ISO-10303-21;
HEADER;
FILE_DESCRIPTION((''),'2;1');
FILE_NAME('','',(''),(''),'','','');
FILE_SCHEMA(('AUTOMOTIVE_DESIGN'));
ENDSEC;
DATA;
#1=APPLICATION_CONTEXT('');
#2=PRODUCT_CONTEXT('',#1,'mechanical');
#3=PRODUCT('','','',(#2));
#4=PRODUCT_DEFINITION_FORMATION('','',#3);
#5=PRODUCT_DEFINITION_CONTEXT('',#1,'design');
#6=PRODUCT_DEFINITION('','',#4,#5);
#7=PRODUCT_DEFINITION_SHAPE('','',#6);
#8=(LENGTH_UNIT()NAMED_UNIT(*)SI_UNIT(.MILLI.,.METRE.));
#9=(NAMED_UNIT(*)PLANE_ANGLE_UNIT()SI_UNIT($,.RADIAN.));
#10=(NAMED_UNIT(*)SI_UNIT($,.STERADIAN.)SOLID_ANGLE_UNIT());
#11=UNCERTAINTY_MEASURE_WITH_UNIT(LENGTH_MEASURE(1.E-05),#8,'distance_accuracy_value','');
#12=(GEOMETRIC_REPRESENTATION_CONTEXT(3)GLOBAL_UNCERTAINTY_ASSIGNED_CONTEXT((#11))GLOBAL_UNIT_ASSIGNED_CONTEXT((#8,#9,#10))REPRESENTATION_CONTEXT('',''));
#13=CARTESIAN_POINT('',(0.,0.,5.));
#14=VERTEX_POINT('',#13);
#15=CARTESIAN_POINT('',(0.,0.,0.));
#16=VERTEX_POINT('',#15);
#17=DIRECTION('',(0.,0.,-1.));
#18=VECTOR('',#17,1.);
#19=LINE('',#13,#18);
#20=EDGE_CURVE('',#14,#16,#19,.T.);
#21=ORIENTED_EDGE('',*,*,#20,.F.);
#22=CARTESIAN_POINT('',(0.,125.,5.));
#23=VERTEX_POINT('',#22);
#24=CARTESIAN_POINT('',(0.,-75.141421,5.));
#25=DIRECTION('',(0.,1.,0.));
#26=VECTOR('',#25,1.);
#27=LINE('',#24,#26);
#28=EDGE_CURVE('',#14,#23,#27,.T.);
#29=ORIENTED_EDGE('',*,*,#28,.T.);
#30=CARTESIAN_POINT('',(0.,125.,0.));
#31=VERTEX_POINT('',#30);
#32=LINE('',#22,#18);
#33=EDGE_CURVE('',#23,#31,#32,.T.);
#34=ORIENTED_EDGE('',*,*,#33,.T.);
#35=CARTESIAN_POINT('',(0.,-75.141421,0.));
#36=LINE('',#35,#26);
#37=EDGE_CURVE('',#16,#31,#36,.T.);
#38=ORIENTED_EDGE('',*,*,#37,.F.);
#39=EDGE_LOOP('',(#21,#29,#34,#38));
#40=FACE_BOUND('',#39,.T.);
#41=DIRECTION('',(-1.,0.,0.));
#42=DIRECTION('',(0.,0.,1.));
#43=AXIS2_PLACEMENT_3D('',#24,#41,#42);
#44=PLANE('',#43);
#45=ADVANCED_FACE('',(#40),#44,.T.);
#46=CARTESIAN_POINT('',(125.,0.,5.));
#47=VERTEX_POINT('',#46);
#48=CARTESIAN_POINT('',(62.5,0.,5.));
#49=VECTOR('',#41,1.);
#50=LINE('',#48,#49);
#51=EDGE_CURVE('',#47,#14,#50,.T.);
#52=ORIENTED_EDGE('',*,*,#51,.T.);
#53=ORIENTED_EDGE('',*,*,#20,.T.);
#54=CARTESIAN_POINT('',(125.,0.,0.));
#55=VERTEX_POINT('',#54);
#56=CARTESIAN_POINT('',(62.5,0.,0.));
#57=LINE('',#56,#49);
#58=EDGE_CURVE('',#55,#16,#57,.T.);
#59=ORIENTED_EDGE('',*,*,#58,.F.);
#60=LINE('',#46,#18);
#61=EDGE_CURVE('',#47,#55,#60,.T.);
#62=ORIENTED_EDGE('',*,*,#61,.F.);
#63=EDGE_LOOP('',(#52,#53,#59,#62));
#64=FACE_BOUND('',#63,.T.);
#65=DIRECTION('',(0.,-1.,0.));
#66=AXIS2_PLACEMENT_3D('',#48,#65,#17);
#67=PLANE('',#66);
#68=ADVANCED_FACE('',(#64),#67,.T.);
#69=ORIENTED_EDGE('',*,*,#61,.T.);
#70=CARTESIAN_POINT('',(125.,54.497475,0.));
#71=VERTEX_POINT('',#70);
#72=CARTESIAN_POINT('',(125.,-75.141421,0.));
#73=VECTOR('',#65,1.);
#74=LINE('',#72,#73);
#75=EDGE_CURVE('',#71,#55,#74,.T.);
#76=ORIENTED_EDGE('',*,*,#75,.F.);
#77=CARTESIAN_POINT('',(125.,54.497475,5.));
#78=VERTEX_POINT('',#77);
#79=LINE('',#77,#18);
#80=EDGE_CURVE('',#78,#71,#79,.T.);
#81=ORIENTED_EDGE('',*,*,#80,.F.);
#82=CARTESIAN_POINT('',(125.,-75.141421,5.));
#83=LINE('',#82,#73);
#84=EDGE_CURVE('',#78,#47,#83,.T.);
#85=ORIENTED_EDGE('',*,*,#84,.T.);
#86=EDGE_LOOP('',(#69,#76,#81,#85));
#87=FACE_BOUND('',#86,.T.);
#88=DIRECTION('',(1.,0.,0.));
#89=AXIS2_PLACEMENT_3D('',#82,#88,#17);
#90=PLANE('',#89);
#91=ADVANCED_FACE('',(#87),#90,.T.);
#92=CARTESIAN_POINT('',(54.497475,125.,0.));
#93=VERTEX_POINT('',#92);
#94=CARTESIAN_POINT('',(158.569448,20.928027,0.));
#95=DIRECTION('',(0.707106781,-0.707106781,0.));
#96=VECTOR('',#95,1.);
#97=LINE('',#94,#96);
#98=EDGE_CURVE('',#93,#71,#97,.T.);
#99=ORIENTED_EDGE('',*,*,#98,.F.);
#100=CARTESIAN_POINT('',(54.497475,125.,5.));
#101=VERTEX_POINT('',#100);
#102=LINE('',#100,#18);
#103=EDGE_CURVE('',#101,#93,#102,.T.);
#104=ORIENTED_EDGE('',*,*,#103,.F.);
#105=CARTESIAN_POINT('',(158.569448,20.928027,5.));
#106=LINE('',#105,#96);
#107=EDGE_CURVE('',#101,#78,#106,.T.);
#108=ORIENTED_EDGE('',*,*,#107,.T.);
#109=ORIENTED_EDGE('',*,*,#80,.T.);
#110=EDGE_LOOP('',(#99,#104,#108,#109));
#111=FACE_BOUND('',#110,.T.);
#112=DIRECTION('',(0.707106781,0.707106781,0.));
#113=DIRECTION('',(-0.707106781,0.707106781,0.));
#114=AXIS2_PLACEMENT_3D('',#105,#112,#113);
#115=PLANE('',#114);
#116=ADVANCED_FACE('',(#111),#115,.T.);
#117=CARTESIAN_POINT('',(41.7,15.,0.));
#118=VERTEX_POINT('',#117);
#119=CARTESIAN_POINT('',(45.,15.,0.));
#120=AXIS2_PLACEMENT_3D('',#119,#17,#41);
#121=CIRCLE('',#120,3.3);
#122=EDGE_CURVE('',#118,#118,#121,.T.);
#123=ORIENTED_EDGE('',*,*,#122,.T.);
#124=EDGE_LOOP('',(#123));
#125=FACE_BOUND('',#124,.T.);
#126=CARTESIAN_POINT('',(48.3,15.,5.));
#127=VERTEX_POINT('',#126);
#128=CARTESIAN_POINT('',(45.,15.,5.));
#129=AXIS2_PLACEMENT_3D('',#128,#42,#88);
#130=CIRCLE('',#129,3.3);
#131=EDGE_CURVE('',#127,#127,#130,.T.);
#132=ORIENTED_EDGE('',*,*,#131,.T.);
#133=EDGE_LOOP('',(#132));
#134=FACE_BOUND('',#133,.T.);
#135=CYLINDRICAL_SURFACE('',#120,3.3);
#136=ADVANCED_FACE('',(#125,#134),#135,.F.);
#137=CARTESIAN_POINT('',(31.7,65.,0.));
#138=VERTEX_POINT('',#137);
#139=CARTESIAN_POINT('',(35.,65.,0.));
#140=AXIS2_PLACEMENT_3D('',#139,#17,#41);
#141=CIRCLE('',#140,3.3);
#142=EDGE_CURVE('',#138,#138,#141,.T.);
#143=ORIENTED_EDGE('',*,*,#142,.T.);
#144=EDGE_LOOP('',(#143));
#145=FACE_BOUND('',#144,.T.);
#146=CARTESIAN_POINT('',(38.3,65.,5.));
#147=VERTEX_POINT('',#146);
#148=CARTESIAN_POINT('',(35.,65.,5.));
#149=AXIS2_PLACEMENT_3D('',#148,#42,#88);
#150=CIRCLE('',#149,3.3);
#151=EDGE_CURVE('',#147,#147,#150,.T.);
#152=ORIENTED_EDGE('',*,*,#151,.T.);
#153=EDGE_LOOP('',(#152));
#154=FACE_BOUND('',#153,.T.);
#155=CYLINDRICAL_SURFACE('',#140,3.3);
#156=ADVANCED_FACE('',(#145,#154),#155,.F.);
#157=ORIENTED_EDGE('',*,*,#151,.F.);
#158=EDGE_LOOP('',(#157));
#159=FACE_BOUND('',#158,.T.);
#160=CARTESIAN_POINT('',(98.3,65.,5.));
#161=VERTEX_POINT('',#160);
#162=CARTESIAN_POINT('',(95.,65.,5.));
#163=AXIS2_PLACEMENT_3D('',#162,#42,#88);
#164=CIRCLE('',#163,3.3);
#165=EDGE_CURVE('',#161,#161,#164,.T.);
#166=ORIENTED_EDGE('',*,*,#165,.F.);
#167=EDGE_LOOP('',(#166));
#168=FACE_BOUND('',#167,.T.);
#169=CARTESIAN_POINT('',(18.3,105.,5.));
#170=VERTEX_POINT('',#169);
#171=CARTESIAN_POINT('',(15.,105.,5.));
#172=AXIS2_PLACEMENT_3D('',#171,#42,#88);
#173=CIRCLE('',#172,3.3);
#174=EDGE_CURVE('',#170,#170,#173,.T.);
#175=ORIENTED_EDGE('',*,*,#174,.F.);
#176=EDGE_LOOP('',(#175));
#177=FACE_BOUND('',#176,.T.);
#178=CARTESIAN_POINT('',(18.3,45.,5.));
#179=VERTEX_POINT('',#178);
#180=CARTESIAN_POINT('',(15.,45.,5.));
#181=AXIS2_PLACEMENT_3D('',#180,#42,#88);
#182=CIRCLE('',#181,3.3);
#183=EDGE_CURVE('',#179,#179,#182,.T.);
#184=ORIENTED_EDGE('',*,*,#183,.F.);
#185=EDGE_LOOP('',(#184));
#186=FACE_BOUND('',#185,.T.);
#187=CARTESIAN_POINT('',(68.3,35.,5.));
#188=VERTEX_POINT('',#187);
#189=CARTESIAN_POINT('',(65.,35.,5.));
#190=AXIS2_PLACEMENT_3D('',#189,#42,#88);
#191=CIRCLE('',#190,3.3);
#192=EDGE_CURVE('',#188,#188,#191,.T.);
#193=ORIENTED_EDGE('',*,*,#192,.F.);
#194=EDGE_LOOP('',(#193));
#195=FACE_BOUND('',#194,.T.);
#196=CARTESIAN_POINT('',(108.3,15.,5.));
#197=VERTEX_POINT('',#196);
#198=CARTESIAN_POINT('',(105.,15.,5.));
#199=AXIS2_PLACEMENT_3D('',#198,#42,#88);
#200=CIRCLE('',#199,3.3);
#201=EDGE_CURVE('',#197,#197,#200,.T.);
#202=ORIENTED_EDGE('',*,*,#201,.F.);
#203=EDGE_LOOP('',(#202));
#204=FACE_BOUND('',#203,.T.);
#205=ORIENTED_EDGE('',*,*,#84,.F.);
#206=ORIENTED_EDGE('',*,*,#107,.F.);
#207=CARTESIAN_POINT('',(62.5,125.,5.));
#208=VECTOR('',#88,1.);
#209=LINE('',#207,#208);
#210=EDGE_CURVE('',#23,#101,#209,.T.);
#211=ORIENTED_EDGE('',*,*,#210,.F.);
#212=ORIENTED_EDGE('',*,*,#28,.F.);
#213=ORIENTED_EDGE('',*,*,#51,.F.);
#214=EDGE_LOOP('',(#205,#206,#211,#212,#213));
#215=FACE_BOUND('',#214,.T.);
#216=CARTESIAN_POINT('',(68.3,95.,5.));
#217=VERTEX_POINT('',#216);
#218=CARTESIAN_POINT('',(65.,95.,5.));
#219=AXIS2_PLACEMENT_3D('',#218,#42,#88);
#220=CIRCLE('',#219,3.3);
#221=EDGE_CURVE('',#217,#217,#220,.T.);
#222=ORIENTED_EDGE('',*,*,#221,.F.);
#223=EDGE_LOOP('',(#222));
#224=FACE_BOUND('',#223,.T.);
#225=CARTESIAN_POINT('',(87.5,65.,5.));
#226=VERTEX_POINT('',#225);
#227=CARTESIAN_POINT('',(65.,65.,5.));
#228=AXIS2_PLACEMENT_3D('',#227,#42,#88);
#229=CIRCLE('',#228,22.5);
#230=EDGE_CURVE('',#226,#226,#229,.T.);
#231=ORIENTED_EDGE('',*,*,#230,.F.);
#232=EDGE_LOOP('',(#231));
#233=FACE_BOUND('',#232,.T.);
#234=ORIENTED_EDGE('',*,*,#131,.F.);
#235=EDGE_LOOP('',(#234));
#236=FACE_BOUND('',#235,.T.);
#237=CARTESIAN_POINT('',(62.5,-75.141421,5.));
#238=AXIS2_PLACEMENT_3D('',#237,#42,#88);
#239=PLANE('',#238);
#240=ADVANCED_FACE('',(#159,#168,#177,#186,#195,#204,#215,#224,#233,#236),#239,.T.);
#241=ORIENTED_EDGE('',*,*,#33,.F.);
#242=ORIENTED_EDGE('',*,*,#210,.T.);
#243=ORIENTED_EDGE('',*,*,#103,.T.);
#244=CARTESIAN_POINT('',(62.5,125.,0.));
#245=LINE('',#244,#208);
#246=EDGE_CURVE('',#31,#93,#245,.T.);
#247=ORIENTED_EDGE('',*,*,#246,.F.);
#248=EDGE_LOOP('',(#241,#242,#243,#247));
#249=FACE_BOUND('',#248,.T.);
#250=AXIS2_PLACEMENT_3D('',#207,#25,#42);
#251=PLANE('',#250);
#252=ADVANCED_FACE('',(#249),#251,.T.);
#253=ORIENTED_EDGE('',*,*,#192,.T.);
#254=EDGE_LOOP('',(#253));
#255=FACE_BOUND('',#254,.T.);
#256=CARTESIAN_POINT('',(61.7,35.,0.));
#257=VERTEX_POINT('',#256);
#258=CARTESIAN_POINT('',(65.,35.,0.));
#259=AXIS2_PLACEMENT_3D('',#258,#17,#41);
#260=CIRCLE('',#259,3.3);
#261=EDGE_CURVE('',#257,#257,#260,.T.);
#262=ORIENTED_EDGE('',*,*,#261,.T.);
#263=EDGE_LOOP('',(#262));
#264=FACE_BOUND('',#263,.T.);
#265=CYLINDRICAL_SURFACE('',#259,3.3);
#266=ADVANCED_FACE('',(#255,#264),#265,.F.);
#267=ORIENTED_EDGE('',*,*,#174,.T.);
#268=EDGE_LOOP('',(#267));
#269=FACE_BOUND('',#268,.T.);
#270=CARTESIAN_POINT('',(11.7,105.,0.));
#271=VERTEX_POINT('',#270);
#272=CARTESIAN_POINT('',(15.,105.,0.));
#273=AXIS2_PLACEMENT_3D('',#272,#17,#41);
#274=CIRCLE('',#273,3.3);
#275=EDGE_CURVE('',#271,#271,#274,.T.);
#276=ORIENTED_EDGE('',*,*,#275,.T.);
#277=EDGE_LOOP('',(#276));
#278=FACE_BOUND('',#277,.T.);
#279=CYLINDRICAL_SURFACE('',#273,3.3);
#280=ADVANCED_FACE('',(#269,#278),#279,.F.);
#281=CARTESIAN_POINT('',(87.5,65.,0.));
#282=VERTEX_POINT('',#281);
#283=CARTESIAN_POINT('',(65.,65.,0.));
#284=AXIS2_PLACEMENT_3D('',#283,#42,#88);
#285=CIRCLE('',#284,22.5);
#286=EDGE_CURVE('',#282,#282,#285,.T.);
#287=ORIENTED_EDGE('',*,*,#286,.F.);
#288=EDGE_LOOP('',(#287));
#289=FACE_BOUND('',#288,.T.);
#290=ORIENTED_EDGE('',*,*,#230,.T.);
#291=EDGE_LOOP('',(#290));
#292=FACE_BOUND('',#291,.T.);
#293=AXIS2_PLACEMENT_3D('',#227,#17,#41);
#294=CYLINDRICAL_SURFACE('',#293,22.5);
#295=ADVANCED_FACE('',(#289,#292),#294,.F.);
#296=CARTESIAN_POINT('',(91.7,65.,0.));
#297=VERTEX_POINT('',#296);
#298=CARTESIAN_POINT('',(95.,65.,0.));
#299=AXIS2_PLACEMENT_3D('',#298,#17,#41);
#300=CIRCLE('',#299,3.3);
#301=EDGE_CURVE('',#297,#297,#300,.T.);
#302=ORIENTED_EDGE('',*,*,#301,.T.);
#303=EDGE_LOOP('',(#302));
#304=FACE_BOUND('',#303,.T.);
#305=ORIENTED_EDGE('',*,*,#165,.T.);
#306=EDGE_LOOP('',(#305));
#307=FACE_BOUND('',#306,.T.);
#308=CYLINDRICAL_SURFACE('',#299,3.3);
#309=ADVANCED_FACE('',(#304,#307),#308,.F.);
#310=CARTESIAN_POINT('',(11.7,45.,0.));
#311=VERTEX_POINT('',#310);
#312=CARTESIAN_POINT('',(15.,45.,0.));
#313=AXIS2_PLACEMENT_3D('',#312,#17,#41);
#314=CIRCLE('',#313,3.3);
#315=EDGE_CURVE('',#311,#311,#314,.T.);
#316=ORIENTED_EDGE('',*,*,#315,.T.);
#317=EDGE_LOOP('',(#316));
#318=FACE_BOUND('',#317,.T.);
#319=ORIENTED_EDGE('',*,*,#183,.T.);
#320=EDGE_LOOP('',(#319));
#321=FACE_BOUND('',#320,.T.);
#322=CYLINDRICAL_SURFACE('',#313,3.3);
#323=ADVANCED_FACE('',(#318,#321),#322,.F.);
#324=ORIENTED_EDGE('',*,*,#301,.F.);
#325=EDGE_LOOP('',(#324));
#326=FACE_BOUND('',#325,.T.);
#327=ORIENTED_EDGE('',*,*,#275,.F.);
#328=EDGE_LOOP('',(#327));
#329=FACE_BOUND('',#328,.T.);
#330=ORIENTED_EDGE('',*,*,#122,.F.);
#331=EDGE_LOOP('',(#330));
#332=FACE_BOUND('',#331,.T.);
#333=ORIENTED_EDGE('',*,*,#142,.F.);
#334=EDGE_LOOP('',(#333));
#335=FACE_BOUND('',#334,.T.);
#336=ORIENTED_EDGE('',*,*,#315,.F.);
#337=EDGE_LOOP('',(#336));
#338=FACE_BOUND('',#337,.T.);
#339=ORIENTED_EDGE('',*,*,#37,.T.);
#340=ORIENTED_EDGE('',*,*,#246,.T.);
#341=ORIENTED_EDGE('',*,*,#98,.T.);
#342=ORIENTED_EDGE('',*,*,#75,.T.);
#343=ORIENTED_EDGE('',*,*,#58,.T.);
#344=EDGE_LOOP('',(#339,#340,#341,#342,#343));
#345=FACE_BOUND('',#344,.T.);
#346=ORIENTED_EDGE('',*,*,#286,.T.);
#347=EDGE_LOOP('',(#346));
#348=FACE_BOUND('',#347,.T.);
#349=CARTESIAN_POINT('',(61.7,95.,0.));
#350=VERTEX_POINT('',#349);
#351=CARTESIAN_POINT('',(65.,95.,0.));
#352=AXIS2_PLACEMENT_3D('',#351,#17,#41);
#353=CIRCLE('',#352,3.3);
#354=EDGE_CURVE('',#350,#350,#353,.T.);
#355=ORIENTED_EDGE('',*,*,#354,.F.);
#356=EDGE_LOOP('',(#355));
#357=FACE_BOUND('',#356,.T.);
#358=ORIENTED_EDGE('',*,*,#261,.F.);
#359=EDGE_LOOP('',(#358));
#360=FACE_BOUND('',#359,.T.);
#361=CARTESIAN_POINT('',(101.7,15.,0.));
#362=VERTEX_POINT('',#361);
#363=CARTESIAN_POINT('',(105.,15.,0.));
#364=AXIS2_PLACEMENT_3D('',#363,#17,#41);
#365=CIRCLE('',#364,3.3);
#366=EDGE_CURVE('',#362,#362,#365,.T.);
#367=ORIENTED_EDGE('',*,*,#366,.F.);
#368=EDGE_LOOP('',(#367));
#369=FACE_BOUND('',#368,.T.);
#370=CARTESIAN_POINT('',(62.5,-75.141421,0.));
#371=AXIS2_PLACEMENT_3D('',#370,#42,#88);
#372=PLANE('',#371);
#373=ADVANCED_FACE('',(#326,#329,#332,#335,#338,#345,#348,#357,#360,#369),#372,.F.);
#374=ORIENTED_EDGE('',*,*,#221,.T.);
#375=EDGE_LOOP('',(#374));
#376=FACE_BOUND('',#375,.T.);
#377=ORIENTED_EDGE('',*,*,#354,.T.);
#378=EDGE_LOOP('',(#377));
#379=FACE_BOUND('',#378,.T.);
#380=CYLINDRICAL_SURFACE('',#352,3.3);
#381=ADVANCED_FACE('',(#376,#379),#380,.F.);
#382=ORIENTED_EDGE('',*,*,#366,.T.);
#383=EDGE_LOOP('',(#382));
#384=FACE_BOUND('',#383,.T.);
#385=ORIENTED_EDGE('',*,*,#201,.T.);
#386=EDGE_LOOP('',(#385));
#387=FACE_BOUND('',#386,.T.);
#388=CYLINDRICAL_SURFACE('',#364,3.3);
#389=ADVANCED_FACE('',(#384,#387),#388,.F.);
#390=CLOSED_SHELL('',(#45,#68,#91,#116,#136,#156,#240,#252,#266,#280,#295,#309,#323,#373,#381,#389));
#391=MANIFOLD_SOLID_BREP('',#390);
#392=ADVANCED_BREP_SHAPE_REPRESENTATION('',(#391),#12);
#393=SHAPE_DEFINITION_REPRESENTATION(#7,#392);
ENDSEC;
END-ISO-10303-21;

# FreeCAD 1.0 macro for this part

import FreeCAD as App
import Part
import Sketcher
from FreeCAD import Vector
Q = App.Units.Quantity

doc = App.newDocument("Part")
body = doc.addObject("PartDesign::Body", "Body")

# Sketch on XY plane
sketch1 = body.newObject("Sketcher::SketchObject", "Sketch")
sketch1.AttachmentSupport = (doc.getObject("XY_Plane"), [""])
sketch1.MapMode = "FlatFace"
sketch1.addGeometry([
    Part.LineSegment(Vector(0, 125, 0), Vector(0, 0, 0)),  # 0
    Part.LineSegment(Vector(0, 0, 0), Vector(125, 0, 0)),  # 1
    Part.LineSegment(Vector(125, 0, 0), Vector(125, 54, 0)),  # 2
    Part.LineSegment(Vector(125, 54, 0), Vector(54, 125, 0)),  # 3
    Part.LineSegment(Vector(54, 125, 0), Vector(0, 125, 0)),  # 4
    Part.Circle(Vector(65, 65, 0), Vector(0, 0, 1), 22),  # 5
], False)
sketch1.addConstraint([
    Sketcher.Constraint("Coincident", 0, 2, 1, 1),
    Sketcher.Constraint("Coincident", 1, 2, 2, 1),
    Sketcher.Constraint("Coincident", 2, 2, 3, 1),
    Sketcher.Constraint("Coincident", 3, 2, 4, 1),
    Sketcher.Constraint("Coincident", 4, 2, 0, 1),
    Sketcher.Constraint("Vertical", 0),
    Sketcher.Constraint("Horizontal", 1),
    Sketcher.Constraint("Vertical", 2),
    Sketcher.Constraint("Horizontal", 4),
    Sketcher.Constraint("Coincident", 0, 2, -1, 1),
    Sketcher.Constraint("Equal", 1, 0),
    Sketcher.Constraint("Equal", 4, 2),
    Sketcher.Constraint("Diameter", 5, Q("45 mm")),
    Sketcher.Constraint("DistanceX", 1, 1, 1, 2, Q("125 mm")),
    Sketcher.Constraint("DistanceX", -1, 1, 5, 3, Q("65 mm")),
    Sketcher.Constraint("DistanceY", -1, 1, 5, 3, Q("65 mm")),
    Sketcher.Constraint("DistanceX", 4, 2, 4, 1, Q("54.497475 mm")),
])
pad1 = body.newObject("PartDesign::Pad", "Pad")
pad1.Profile = sketch1
pad1.Length = 5

# Sketch on XY plane
sketch2 = body.newObject("Sketcher::SketchObject", "Sketch001")
sketch2.AttachmentSupport = (doc.getObject("XY_Plane"), [""])
sketch2.MapMode = "FlatFace"
sketch2.addGeometry([
    Part.Circle(Vector(95, 65, 0), Vector(0, 0, 1), 3.3),  # 0
    Part.Circle(Vector(65, 95, 0), Vector(0, 0, 1), 3.3),  # 1
    Part.Circle(Vector(35, 65, 0), Vector(0, 0, 1), 3.3),  # 2
    Part.Circle(Vector(65, 35, 0), Vector(0, 0, 1), 3.3),  # 3
    Part.Circle(Vector(105, 15, 0), Vector(0, 0, 1), 3.3),  # 4
    Part.Circle(Vector(45, 15, 0), Vector(0, 0, 1), 3.3),  # 5
    Part.Circle(Vector(15, 45, 0), Vector(0, 0, 1), 3.3),  # 6
    Part.Circle(Vector(15, 105, 0), Vector(0, 0, 1), 3.3),  # 7
], False)
sketch2.addConstraint([
    Sketcher.Constraint("Equal", 0, 1),
    Sketcher.Constraint("Equal", 1, 2),
    Sketcher.Constraint("Equal", 2, 3),
    Sketcher.Constraint("Equal", 3, 4),
    Sketcher.Constraint("Equal", 4, 5),
    Sketcher.Constraint("Equal", 5, 6),
    Sketcher.Constraint("Equal", 6, 7),
    Sketcher.Constraint("Horizontal", 0, 3, 2, 3),
    Sketcher.Constraint("Horizontal", 4, 3, 5, 3),
    Sketcher.Constraint("Vertical", 1, 3, 3, 3),
    Sketcher.Constraint("Vertical", 6, 3, 7, 3),
    Sketcher.Constraint("Diameter", 0, Q("6.6 mm")),
    Sketcher.Constraint("DistanceX", -1, 1, 0, 3, Q("95 mm")),
    Sketcher.Constraint("DistanceY", -1, 1, 0, 3, Q("65 mm")),
    Sketcher.Constraint("DistanceX", -1, 1, 1, 3, Q("65 mm")),
    Sketcher.Constraint("DistanceY", -1, 1, 1, 3, Q("95 mm")),
    Sketcher.Constraint("DistanceX", -1, 1, 2, 3, Q("35 mm")),
    Sketcher.Constraint("DistanceY", -1, 1, 3, 3, Q("35 mm")),
    Sketcher.Constraint("DistanceX", -1, 1, 4, 3, Q("105 mm")),
    Sketcher.Constraint("DistanceY", -1, 1, 4, 3, Q("15 mm")),
    Sketcher.Constraint("DistanceX", -1, 1, 5, 3, Q("45 mm")),
    Sketcher.Constraint("DistanceX", -1, 1, 6, 3, Q("15 mm")),
    Sketcher.Constraint("DistanceY", -1, 1, 6, 3, Q("45 mm")),
    Sketcher.Constraint("DistanceY", -1, 1, 7, 3, Q("105 mm")),
])
doc.recompute()
hole = body.newObject("PartDesign::Hole", "Hole")
hole.Profile = sketch2
hole.ThreadType = "None"
hole.Diameter = 6.6
hole.DepthType = "Dimension"
hole.Depth = 10
hole.DrillPoint = "Angled"
hole.DrillPointAngle = 118
hole.Reversed = True

doc.recompute()
